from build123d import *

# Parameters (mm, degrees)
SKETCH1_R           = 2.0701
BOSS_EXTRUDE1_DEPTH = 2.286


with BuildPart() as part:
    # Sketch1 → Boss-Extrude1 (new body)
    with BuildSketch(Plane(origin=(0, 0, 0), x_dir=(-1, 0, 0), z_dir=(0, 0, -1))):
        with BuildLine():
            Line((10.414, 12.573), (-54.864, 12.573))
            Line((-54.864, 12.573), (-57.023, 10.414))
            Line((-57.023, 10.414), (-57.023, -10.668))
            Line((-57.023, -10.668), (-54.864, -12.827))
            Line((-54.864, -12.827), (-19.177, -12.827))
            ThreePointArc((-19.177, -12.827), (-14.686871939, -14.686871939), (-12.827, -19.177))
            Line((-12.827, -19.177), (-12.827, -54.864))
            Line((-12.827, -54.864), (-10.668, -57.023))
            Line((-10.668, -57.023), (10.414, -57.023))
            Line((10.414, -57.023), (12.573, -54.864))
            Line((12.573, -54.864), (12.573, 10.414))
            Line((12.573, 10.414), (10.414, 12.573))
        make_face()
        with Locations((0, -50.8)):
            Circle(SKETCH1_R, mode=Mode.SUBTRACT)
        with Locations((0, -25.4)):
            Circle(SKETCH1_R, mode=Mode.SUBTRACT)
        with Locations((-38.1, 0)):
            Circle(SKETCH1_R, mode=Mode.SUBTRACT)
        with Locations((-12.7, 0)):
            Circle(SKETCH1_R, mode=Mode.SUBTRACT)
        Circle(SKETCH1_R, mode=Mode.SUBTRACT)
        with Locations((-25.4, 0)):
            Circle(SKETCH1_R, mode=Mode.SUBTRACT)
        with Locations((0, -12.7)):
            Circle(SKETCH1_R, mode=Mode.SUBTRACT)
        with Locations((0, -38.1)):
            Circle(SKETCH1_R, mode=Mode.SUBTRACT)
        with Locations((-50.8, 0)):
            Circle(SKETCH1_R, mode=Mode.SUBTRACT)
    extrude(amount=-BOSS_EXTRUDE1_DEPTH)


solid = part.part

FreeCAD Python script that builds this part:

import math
import FreeCAD as App
import Part
import Sketcher

V = App.Vector
Q = App.Units.Quantity

doc = App.newDocument("Part")
body = doc.addObject("PartDesign::Body", "Body")

sketch1 = body.newObject("Sketcher::SketchObject", "Sketch")
sketch1.AttachmentSupport = (doc.getObject("XY_Plane"), [""])
sketch1.MapMode = "FlatFace"
sketch1.addGeometry([
    Part.LineSegment(V(-10.4, 12.6, 0), V(54.9, 12.6, 0)),
    Part.LineSegment(V(54.9, 12.6, 0), V(57, 10.4, 0)),
    Part.LineSegment(V(57, 10.4, 0), V(57, -10.7, 0)),
    Part.LineSegment(V(57, -10.7, 0), V(54.9, -12.8, 0)),
    Part.LineSegment(V(54.9, -12.8, 0), V(19.2, -12.8, 0)),
    Part.ArcOfCircle(Part.Circle(V(19.2, -19.2, 0), V(0, 0, 1), 6.3), math.radians(90), math.radians(180)),
    Part.LineSegment(V(12.8, -19.2, 0), V(12.8, -54.9, 0)),
    Part.LineSegment(V(12.8, -54.9, 0), V(10.7, -57, 0)),
    Part.LineSegment(V(10.7, -57, 0), V(-10.4, -57, 0)),
    Part.LineSegment(V(-10.4, -57, 0), V(-12.6, -54.9, 0)),
    Part.LineSegment(V(-12.6, -54.9, 0), V(-12.6, 10.4, 0)),
    Part.LineSegment(V(-12.6, 10.4, 0), V(-10.4, 12.6, 0)),
    Part.Circle(V(0, -50.8, 0), V(0, 0, 1), 2.1),
    Part.Circle(V(0, -38.1, 0), V(0, 0, 1), 2.1),
    Part.Circle(V(50.8, 0, 0), V(0, 0, 1), 2.1),
    Part.Circle(V(38.1, 0, 0), V(0, 0, 1), 2.1),
    Part.Circle(V(25.4, 0, 0), V(0, 0, 1), 2.1),
    Part.Circle(V(0, -25.4, 0), V(0, 0, 1), 2.1),
    Part.Circle(V(0, -12.7, 0), V(0, 0, 1), 2.1),
    Part.Circle(V(12.7, 0, 0), V(0, 0, 1), 2.1),
    Part.Circle(V(0, 0, 0), V(0, 0, 1), 2.1),
], False)
sketch1.addConstraint([
    Sketcher.Constraint("Coincident", 0, 2, 1, 1),
    Sketcher.Constraint("Coincident", 1, 2, 2, 1),
    Sketcher.Constraint("Coincident", 2, 2, 3, 1),
    Sketcher.Constraint("Coincident", 3, 2, 4, 1),
    Sketcher.Constraint("Tangent", 4, 2, 5, 1),
    Sketcher.Constraint("Tangent", 5, 2, 6, 1),
    Sketcher.Constraint("Coincident", 6, 2, 7, 1),
    Sketcher.Constraint("Coincident", 7, 2, 8, 1),
    Sketcher.Constraint("Coincident", 8, 2, 9, 1),
    Sketcher.Constraint("Coincident", 9, 2, 10, 1),
    Sketcher.Constraint("Coincident", 10, 2, 11, 1),
    Sketcher.Constraint("Coincident", 11, 2, 0, 1),
    Sketcher.Constraint("Horizontal", 0),
    Sketcher.Constraint("Vertical", 2),
    Sketcher.Constraint("Horizontal", 4),
    Sketcher.Constraint("Vertical", 6),
    Sketcher.Constraint("Horizontal", 8),
    Sketcher.Constraint("Vertical", 10),
    Sketcher.Constraint("Coincident", 20, 3, -1, 1),
    Sketcher.Constraint("Equal", 12, 13),
    Sketcher.Constraint("Equal", 13, 14),
    Sketcher.Constraint("Equal", 14, 15),
    Sketcher.Constraint("Equal", 15, 16),
    Sketcher.Constraint("Equal", 16, 17),
    Sketcher.Constraint("Equal", 17, 18),
    Sketcher.Constraint("Equal", 18, 19),
    Sketcher.Constraint("Equal", 19, 20),
    Sketcher.Constraint("PointOnObject", 12, 3, -2),
    Sketcher.Constraint("PointOnObject", 13, 3, -2),
    Sketcher.Constraint("PointOnObject", 14, 3, -1),
    Sketcher.Constraint("PointOnObject", 15, 3, -1),
    Sketcher.Constraint("PointOnObject", 16, 3, -1),
    Sketcher.Constraint("PointOnObject", 17, 3, -2),
    Sketcher.Constraint("PointOnObject", 18, 3, -2),
    Sketcher.Constraint("PointOnObject", 19, 3, -1),
    Sketcher.Constraint("Perpendicular", 1, 3),
    Sketcher.Constraint("Parallel", 3, 7),
    Sketcher.Constraint("Perpendicular", 7, 9),
    Sketcher.Constraint("Perpendicular", 9, 11),
    Sketcher.Constraint("Horizontal", 6, 2, 9, 2),
    Sketcher.Constraint("Horizontal", 1, 2, 10, 2),
    Sketcher.Constraint("Vertical", 0, 2, 3, 2),
    Sketcher.Constraint("Vertical", 8, 2, 11, 2),
    Sketcher.Constraint("Equal", 8, 2),
    Sketcher.Constraint("Equal", 4, 6),
    Sketcher.Constraint("Equal", 0, 10),
    Sketcher.Constraint("Radius", 5, Q("0.25 in")),
    Sketcher.Constraint("Diameter", 12, Q("0.163 in")),
    Sketcher.Constraint("DistanceY", 12, 3, -1, 1, Q("2 in")),
    Sketcher.Constraint("DistanceX", -1, 1, 14, 3, Q("2 in")),
    Sketcher.Constraint("DistanceX", -1, 1, 16, 3, Q("1 in")),
    Sketcher.Constraint("DistanceY", 17, 3, -1, 1, Q("1 in")),
    Sketcher.Constraint("DistanceY", 13, 3, 18, 3, Q("1 in")),
    Sketcher.Constraint("DistanceX", 19, 3, 15, 3, Q("1 in")),
    Sketcher.Constraint("DistanceY", 3, 2, 0, 2, Q("1 in")),
    Sketcher.Constraint("DistanceX", 0, 1, 0, 2, Q("2.57 in")),
    Sketcher.Constraint("DistanceX", 8, 2, 8, 1, Q("0.83 in")),
    Sketcher.Constraint("DistanceY", 13, 3, -1, 1, Q("1.5 in")),
    Sketcher.Constraint("DistanceX", -1, 1, 15, 3, Q("1.5 in")),
    Sketcher.Constraint("DistanceX", -1, 1, 0, 2, Q("2.16 in")),
    Sketcher.Constraint("DistanceY", -1, 1, 1, 2, Q("0.41 in")),
])
pad1 = body.newObject("PartDesign::Pad", "Pad")
pad1.Profile = sketch1
pad1.Length = Q("0.09 in")

doc.recompute()
